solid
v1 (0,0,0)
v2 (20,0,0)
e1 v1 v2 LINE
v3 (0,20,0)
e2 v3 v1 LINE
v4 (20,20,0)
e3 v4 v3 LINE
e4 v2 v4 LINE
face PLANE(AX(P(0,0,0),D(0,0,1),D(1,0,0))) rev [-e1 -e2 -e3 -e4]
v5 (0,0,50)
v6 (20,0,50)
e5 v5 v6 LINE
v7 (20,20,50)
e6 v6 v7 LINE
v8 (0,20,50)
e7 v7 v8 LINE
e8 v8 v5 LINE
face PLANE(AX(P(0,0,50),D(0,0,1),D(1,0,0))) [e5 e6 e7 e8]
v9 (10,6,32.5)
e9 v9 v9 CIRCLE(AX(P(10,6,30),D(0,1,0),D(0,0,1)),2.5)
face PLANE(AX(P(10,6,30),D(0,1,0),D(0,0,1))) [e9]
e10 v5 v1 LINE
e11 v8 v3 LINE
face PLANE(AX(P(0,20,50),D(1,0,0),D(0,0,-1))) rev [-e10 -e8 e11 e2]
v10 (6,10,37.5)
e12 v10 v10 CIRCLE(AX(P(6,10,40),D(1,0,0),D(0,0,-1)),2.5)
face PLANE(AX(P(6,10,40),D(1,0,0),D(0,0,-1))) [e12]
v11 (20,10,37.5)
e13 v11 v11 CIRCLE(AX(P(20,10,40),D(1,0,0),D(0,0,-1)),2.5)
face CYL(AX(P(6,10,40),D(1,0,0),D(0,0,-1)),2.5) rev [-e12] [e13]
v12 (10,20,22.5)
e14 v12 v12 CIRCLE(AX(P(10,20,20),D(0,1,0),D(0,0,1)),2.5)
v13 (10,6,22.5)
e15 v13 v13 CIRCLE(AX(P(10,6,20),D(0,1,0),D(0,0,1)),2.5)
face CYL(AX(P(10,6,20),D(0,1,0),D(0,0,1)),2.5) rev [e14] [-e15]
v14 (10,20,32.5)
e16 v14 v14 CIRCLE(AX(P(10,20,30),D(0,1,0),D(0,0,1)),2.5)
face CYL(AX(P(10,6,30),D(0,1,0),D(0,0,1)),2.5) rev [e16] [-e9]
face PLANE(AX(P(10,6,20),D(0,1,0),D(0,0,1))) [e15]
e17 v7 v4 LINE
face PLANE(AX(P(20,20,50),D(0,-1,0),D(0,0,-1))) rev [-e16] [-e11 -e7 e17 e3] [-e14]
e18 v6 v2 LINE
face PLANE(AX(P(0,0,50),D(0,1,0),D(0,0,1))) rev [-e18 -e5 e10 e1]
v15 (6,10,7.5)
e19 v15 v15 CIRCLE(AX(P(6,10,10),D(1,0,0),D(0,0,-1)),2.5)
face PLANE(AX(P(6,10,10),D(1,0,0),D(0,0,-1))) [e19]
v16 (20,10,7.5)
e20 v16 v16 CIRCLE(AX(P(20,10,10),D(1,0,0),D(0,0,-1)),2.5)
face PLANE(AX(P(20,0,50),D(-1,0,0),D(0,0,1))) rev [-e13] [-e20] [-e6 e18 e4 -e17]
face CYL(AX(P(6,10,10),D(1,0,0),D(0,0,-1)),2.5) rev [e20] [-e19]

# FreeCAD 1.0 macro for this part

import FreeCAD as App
import Part
import Sketcher
from FreeCAD import Vector


def add_polygon(sketch, points):
    """Adds a closed chain of lines whose ends are joined by coincident constraints."""
    first, n = sketch.GeometryCount, len(points)
    for a, b in zip(points, points[1:] + points[:1]):
        sketch.addGeometry(Part.LineSegment(App.Vector(*a, 0), App.Vector(*b, 0)), False)
    for i in range(n):
        sketch.addConstraint(Sketcher.Constraint("Coincident", first + i, 2, first + (i + 1) % n, 1))

doc = App.newDocument("Part")
params = doc.addObject("Spreadsheet::Sheet", "Params")
for row, (alias, value) in enumerate([
    ("sketch1_width", "20 mm"),
    ("pad1_length", "50 mm"),
    ("sketch2_diameter", "5 mm"),
    ("pocket1_length", "14 mm"),
    ("sketch3_diameter", "5 mm"),
    ("pocket2_length", "14 mm"),
], start=1):
    params.set(f"A{row}", alias)
    params.set(f"B{row}", "=" + value)
    params.setAlias(f"B{row}", alias)

body = doc.addObject("PartDesign::Body", "Body")

# Sketch on XY plane
sketch1 = doc.addObject("Sketcher::SketchObject", "Sketch")
body.addObject(sketch1)
sketch1.AttachmentSupport = (doc.XY_Plane, [""])
sketch1.MapMode = "FlatFace"
add_polygon(sketch1, [(0, 20), (0, 0), (20, 0), (20, 20)])  # lines 0-3
sketch1.addConstraint(Sketcher.Constraint("Vertical", 0))
sketch1.addConstraint(Sketcher.Constraint("Horizontal", 1))
sketch1.addConstraint(Sketcher.Constraint("Vertical", 2))
sketch1.addConstraint(Sketcher.Constraint("Horizontal", 3))
sketch1.addConstraint(Sketcher.Constraint("Coincident", 0, 2, -1, 1))
sketch1.addConstraint(Sketcher.Constraint("Equal", 3, 0))
sketch1.addConstraint(Sketcher.Constraint("DistanceX", 1, 1, 1, 2, 20.0))
sketch1.setExpression("Constraints[10]", "Params.sketch1_width")
pad1 = doc.addObject("PartDesign::Pad", "Pad")
body.addObject(pad1)
pad1.Profile = sketch1
pad1.setExpression("Length", "Params.pad1_length")

# Sketch on YZ plane
sketch2 = doc.addObject("Sketcher::SketchObject", "Sketch001")
body.addObject(sketch2)
sketch2.AttachmentSupport = (doc.YZ_Plane, [""])
sketch2.MapMode = "FlatFace"
sketch2.AttachmentOffset = App.Placement(Vector(0, 0, 20), App.Rotation())
sketch2.addGeometry(Part.Circle(Vector(10, 10, 0), Vector(0, 0, 1), 2.5), False)
sketch2.addGeometry(Part.Circle(Vector(10, 40, 0), Vector(0, 0, 1), 2.5), False)
sketch2.addConstraint(Sketcher.Constraint("Equal", 0, 1))
sketch2.addConstraint(Sketcher.Constraint("Vertical", 0, 3, 1, 3))
sketch2.addConstraint(Sketcher.Constraint("Diameter", 0, 5.0))
sketch2.addConstraint(Sketcher.Constraint("DistanceX", -1, 1, 0, 3, 10.0))
sketch2.addConstraint(Sketcher.Constraint("DistanceY", -1, 1, 0, 3, 10.0))
sketch2.addConstraint(Sketcher.Constraint("DistanceY", -1, 1, 1, 3, 40.0))
sketch2.setExpression("Constraints[2]", "Params.sketch2_diameter")
pocket1 = doc.addObject("PartDesign::Pocket", "Pocket")
body.addObject(pocket1)
pocket1.Profile = sketch2
pocket1.setExpression("Length", "Params.pocket1_length")

# Sketch on XZ plane
sketch3 = doc.addObject("Sketcher::SketchObject", "Sketch002")
body.addObject(sketch3)
sketch3.AttachmentSupport = (doc.XZ_Plane, [""])
sketch3.MapMode = "FlatFace"
sketch3.AttachmentOffset = App.Placement(Vector(0, 0, -20), App.Rotation())
sketch3.addGeometry(Part.Circle(Vector(10, 20, 0), Vector(0, 0, 1), 2.5), False)
sketch3.addGeometry(Part.Circle(Vector(10, 30, 0), Vector(0, 0, 1), 2.5), False)
sketch3.addConstraint(Sketcher.Constraint("Equal", 0, 1))
sketch3.addConstraint(Sketcher.Constraint("Vertical", 0, 3, 1, 3))
sketch3.addConstraint(Sketcher.Constraint("Diameter", 0, 5.0))
sketch3.addConstraint(Sketcher.Constraint("DistanceX", -1, 1, 0, 3, 10.0))
sketch3.addConstraint(Sketcher.Constraint("DistanceY", -1, 1, 0, 3, 20.0))
sketch3.addConstraint(Sketcher.Constraint("DistanceY", -1, 1, 1, 3, 30.0))
sketch3.setExpression("Constraints[2]", "Params.sketch3_diameter")
pocket2 = doc.addObject("PartDesign::Pocket", "Pocket001")
body.addObject(pocket2)
pocket2.Profile = sketch3
pocket2.setExpression("Length", "Params.pocket2_length")
pocket2.Reversed = True

doc.recompute()
